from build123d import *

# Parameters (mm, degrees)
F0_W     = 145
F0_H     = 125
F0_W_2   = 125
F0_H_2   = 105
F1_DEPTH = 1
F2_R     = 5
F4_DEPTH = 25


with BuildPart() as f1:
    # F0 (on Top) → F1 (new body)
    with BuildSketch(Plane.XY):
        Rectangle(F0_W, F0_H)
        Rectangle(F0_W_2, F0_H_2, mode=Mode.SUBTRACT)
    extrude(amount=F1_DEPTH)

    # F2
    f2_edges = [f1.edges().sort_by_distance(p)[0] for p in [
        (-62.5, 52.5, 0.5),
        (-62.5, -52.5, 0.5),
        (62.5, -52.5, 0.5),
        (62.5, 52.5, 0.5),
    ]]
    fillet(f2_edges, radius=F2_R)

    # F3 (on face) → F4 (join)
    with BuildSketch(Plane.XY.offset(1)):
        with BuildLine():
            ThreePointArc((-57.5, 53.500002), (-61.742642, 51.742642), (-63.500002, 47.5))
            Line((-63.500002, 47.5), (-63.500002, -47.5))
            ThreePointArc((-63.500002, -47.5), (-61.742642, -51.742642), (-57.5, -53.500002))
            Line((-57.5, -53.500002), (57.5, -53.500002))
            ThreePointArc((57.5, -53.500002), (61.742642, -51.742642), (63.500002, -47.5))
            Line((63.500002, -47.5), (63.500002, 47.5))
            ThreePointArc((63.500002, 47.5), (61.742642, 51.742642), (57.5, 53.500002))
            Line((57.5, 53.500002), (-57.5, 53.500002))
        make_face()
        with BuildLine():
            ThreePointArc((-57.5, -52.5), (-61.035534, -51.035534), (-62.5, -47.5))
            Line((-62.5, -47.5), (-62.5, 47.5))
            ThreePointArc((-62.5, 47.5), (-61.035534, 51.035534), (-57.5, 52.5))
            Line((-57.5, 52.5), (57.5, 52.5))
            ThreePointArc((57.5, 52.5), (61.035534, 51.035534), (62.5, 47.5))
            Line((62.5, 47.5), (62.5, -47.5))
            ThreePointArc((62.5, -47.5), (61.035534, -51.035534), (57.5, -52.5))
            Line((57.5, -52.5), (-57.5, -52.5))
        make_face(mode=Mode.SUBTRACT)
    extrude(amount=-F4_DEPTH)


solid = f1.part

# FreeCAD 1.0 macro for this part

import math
import FreeCAD as App
import Part
import Sketcher

V = App.Vector
Q = App.Units.Quantity


def edges_at(feature, points):
    """Names of the edges that pass closest to the given points."""
    edges = feature.Shape.Edges
    near = lambda p: min(range(len(edges)), key=lambda i: edges[i].distToShape(Part.Vertex(*p))[0])
    return sorted({f"Edge{near(p) + 1}" for p in points})


def add_polygon(sketch, points):
    """Adds a closed chain of lines whose ends are joined by coincident constraints."""
    first, n = sketch.GeometryCount, len(points)
    for a, b in zip(points, points[1:] + points[:1]):
        sketch.addGeometry(Part.LineSegment(App.Vector(*a, 0), App.Vector(*b, 0)), False)
    for i in range(n):
        sketch.addConstraint(Sketcher.Constraint("Coincident", first + i, 2, first + (i + 1) % n, 1))

doc = App.newDocument("Part")
body = doc.addObject("PartDesign::Body", "Body")

# Sketch on XY plane
sketch1 = body.newObject("Sketcher::SketchObject", "Sketch")
sketch1.AttachmentSupport = (doc.getObject("XY_Plane"), [""])
sketch1.MapMode = "FlatFace"
add_polygon(sketch1, [(-72, 62), (-72, -62), (72, -62), (72, 62)])  # lines 0-3
add_polygon(sketch1, [(62, -52), (-62, -52), (-62, 52), (62, 52)])  # lines 4-7
sketch1.addConstraint([
    Sketcher.Constraint("Vertical", 0),
    Sketcher.Constraint("Horizontal", 1),
    Sketcher.Constraint("Vertical", 2),
    Sketcher.Constraint("Horizontal", 3),
    Sketcher.Constraint("Horizontal", 4),
    Sketcher.Constraint("Vertical", 5),
    Sketcher.Constraint("Horizontal", 6),
    Sketcher.Constraint("Vertical", 7),
    Sketcher.Constraint("Symmetric", 0, 2, 2, 2, -1, 1),
    Sketcher.Constraint("Symmetric", 4, 2, 6, 2, -1, 1),
    Sketcher.Constraint("Equal", 6, 0),
    Sketcher.Constraint("DistanceX", 1, 1, 1, 2, Q("145 mm")),
    Sketcher.Constraint("DistanceX", 4, 2, 4, 1, Q("125 mm")),
    Sketcher.Constraint("DistanceY", 5, 1, 5, 2, Q("105 mm")),
])
pad1 = body.newObject("PartDesign::Pad", "Pad")
pad1.Profile = sketch1
pad1.Length = 1
doc.recompute()

fillet = body.newObject("PartDesign::Fillet", "Fillet")
fillet.Base = (pad1, edges_at(pad1, [
    (-62.5, 52.5, 0.5),
    (-62.5, -52.5, 0.5),
    (62.5, -52.5, 0.5),
    (62.5, 52.5, 0.5),
]))
fillet.Radius = 5

# Sketch on XY plane
sketch2 = body.newObject("Sketcher::SketchObject", "Sketch001")
sketch2.AttachmentSupport = (doc.getObject("XY_Plane"), [""])
sketch2.MapMode = "FlatFace"
sketch2.AttachmentOffset = App.Placement(V(0, 0, 1), App.Rotation())
sketch2.addGeometry([
    Part.ArcOfCircle(Part.Circle(V(-57.5, 47.5, 0), V(0, 0, 1), 6), math.radians(90), math.radians(180)),  # 0
    Part.LineSegment(V(-63.5, 47.5, 0), V(-63.5, -47.5, 0)),  # 1
    Part.ArcOfCircle(Part.Circle(V(-57.5, -47.5, 0), V(0, 0, 1), 6), math.radians(-180), math.radians(-90)),  # 2
    Part.LineSegment(V(-57.5, -53.5, 0), V(57.5, -53.5, 0)),  # 3
    Part.ArcOfCircle(Part.Circle(V(57.5, -47.5, 0), V(0, 0, 1), 6), math.radians(-90), math.radians(0)),  # 4
    Part.LineSegment(V(63.5, -47.5, 0), V(63.5, 47.5, 0)),  # 5
    Part.ArcOfCircle(Part.Circle(V(57.5, 47.5, 0), V(0, 0, 1), 6), math.radians(0), math.radians(90)),  # 6
    Part.LineSegment(V(57.5, 53.5, 0), V(-57.5, 53.5, 0)),  # 7
    Part.LineSegment(V(57.5, -52.5, 0), V(-57.5, -52.5, 0)),  # 8
    Part.ArcOfCircle(Part.Circle(V(-57.5, -47.5, 0), V(0, 0, 1), 5), math.radians(180), math.radians(270)),  # 9
    Part.LineSegment(V(-62.5, -47.5, 0), V(-62.5, 47.5, 0)),  # 10
    Part.ArcOfCircle(Part.Circle(V(-57.5, 47.5, 0), V(0, 0, 1), 5), math.radians(90), math.radians(180)),  # 11
    Part.LineSegment(V(-57.5, 52.5, 0), V(57.5, 52.5, 0)),  # 12
    Part.ArcOfCircle(Part.Circle(V(57.5, 47.5, 0), V(0, 0, 1), 5), math.radians(0), math.radians(90)),  # 13
    Part.LineSegment(V(62.5, 47.5, 0), V(62.5, -47.5, 0)),  # 14
    Part.ArcOfCircle(Part.Circle(V(57.5, -47.5, 0), V(0, 0, 1), 5), math.radians(-90), math.radians(0)),  # 15
], False)
sketch2.addConstraint([
    Sketcher.Constraint("Tangent", 0, 2, 1, 1),
    Sketcher.Constraint("Tangent", 1, 2, 2, 1),
    Sketcher.Constraint("Tangent", 2, 2, 3, 1),
    Sketcher.Constraint("Tangent", 3, 2, 4, 1),
    Sketcher.Constraint("Tangent", 4, 2, 5, 1),
    Sketcher.Constraint("Tangent", 5, 2, 6, 1),
    Sketcher.Constraint("Tangent", 6, 2, 7, 1),
    Sketcher.Constraint("Tangent", 7, 2, 0, 1),
    Sketcher.Constraint("Tangent", 8, 2, 9, 2),
    Sketcher.Constraint("Tangent", 9, 1, 10, 1),
    Sketcher.Constraint("Tangent", 10, 2, 11, 2),
    Sketcher.Constraint("Tangent", 11, 1, 12, 1),
    Sketcher.Constraint("Tangent", 12, 2, 13, 2),
    Sketcher.Constraint("Tangent", 13, 1, 14, 1),
    Sketcher.Constraint("Tangent", 14, 2, 15, 2),
    Sketcher.Constraint("Tangent", 15, 1, 8, 1),
    Sketcher.Constraint("Vertical", 1),
    Sketcher.Constraint("Horizontal", 3),
    Sketcher.Constraint("Vertical", 5),
    Sketcher.Constraint("Horizontal", 7),
    Sketcher.Constraint("Horizontal", 8),
    Sketcher.Constraint("Vertical", 10),
    Sketcher.Constraint("Horizontal", 12),
    Sketcher.Constraint("Vertical", 14),
    Sketcher.Constraint("Coincident", 9, 3, 2, 3),
    Sketcher.Constraint("Coincident", 11, 3, 0, 3),
    Sketcher.Constraint("Coincident", 13, 3, 6, 3),
    Sketcher.Constraint("Equal", 0, 2),
    Sketcher.Constraint("Equal", 2, 4),
    Sketcher.Constraint("Equal", 4, 6),
    Sketcher.Constraint("Equal", 13, 15),
    Sketcher.Constraint("Symmetric", 0, 3, 4, 3, -1, 1),
    Sketcher.Constraint("Radius", 9, Q("5 mm")),
    Sketcher.Constraint("DistanceX", 3, 1, 3, 2, Q("115 mm")),
    Sketcher.Constraint("DistanceY", 1, 2, 1, 1, Q("95 mm")),
    Sketcher.Constraint("DistanceX", 0, 2, 11, 3, Q("6.000002 mm")),
])
pad2 = body.newObject("PartDesign::Pad", "Pad001")
pad2.Profile = sketch2
pad2.Length = 25
pad2.Reversed = True

doc.recompute()
